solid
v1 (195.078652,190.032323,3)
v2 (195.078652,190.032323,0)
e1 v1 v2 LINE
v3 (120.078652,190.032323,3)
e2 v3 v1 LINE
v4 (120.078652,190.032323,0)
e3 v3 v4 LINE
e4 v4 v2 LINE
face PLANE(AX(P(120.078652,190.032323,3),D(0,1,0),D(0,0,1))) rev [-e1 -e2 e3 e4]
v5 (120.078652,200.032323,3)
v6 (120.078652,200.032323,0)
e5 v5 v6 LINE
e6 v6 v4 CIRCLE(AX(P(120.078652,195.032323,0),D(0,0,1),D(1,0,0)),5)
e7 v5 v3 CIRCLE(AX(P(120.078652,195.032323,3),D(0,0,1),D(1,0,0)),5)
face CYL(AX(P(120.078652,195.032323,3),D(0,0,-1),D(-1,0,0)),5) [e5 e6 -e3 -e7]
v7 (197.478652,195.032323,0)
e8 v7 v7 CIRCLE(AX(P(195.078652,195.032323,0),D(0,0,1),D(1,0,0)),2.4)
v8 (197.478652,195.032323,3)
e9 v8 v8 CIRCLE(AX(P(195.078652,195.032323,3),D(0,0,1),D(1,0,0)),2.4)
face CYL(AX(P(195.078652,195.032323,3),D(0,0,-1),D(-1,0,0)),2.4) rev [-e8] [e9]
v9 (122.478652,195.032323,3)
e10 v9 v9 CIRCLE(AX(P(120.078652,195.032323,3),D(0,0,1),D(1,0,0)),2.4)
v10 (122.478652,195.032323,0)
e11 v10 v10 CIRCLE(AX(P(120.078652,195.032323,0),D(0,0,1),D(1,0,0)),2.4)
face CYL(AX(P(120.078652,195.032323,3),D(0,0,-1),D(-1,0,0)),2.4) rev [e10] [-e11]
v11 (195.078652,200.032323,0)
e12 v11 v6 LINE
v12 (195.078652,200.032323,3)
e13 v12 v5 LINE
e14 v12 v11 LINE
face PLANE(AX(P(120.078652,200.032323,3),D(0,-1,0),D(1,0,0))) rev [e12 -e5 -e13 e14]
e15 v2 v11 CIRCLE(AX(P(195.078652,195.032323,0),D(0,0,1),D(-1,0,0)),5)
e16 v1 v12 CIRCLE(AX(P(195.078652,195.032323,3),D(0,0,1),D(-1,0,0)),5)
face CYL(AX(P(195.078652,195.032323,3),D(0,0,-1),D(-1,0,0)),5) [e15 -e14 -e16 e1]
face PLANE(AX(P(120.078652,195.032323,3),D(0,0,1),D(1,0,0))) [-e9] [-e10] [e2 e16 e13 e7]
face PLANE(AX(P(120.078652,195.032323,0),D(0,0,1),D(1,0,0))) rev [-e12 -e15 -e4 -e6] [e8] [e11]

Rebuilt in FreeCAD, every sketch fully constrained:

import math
import FreeCAD as App
import Part
import Sketcher

V = App.Vector

doc = App.newDocument("Part")
body = doc.addObject("PartDesign::Body", "Body")

sketch1 = body.newObject("Sketcher::SketchObject", "Sketch")
sketch1.AttachmentSupport = (doc.getObject("XY_Plane"), [""])
sketch1.MapMode = "FlatFace"
sketch1.addGeometry(Part.LineSegment(V(120.1, 190, 0), V(195.1, 190, 0)), False)
sketch1.addGeometry(Part.ArcOfCircle(Part.Circle(V(195.1, 195, 0), V(0, 0, 1), 5), math.radians(-90), math.radians(90)), False)
sketch1.addGeometry(Part.LineSegment(V(195.1, 200, 0), V(120.1, 200, 0)), False)
sketch1.addGeometry(Part.ArcOfCircle(Part.Circle(V(120.1, 195, 0), V(0, 0, 1), 5), math.radians(90), math.radians(270)), False)
sketch1.addGeometry(Part.Circle(V(120.1, 195, 0), V(0, 0, 1), 2.4), False)
sketch1.addGeometry(Part.Circle(V(195.1, 195, 0), V(0, 0, 1), 2.4), False)
sketch1.addConstraint(Sketcher.Constraint("Tangent", 0, 2, 1, 1))
sketch1.addConstraint(Sketcher.Constraint("Tangent", 1, 2, 2, 1))
sketch1.addConstraint(Sketcher.Constraint("Tangent", 2, 2, 3, 1))
sketch1.addConstraint(Sketcher.Constraint("Tangent", 3, 2, 0, 1))
sketch1.addConstraint(Sketcher.Constraint("Horizontal", 0))
sketch1.addConstraint(Sketcher.Constraint("Horizontal", 2))
sketch1.addConstraint(Sketcher.Constraint("Coincident", 4, 3, 3, 3))
sketch1.addConstraint(Sketcher.Constraint("Coincident", 5, 3, 1, 3))
sketch1.addConstraint(Sketcher.Constraint("Equal", 4, 5))
sketch1.addConstraint(Sketcher.Constraint("Radius", 1, 5.0))
sketch1.addConstraint(Sketcher.Constraint("Diameter", 4, 4.8))
sketch1.addConstraint(Sketcher.Constraint("DistanceX", 0, 1, 0, 2, 75.0))
sketch1.addConstraint(Sketcher.Constraint("DistanceX", -1, 1, 1, 3, 195.078652))
sketch1.addConstraint(Sketcher.Constraint("DistanceY", -1, 1, 1, 3, 195.032323))
pad1 = body.newObject("PartDesign::Pad", "Pad")
pad1.Profile = sketch1
pad1.Length = 3

doc.recompute()
